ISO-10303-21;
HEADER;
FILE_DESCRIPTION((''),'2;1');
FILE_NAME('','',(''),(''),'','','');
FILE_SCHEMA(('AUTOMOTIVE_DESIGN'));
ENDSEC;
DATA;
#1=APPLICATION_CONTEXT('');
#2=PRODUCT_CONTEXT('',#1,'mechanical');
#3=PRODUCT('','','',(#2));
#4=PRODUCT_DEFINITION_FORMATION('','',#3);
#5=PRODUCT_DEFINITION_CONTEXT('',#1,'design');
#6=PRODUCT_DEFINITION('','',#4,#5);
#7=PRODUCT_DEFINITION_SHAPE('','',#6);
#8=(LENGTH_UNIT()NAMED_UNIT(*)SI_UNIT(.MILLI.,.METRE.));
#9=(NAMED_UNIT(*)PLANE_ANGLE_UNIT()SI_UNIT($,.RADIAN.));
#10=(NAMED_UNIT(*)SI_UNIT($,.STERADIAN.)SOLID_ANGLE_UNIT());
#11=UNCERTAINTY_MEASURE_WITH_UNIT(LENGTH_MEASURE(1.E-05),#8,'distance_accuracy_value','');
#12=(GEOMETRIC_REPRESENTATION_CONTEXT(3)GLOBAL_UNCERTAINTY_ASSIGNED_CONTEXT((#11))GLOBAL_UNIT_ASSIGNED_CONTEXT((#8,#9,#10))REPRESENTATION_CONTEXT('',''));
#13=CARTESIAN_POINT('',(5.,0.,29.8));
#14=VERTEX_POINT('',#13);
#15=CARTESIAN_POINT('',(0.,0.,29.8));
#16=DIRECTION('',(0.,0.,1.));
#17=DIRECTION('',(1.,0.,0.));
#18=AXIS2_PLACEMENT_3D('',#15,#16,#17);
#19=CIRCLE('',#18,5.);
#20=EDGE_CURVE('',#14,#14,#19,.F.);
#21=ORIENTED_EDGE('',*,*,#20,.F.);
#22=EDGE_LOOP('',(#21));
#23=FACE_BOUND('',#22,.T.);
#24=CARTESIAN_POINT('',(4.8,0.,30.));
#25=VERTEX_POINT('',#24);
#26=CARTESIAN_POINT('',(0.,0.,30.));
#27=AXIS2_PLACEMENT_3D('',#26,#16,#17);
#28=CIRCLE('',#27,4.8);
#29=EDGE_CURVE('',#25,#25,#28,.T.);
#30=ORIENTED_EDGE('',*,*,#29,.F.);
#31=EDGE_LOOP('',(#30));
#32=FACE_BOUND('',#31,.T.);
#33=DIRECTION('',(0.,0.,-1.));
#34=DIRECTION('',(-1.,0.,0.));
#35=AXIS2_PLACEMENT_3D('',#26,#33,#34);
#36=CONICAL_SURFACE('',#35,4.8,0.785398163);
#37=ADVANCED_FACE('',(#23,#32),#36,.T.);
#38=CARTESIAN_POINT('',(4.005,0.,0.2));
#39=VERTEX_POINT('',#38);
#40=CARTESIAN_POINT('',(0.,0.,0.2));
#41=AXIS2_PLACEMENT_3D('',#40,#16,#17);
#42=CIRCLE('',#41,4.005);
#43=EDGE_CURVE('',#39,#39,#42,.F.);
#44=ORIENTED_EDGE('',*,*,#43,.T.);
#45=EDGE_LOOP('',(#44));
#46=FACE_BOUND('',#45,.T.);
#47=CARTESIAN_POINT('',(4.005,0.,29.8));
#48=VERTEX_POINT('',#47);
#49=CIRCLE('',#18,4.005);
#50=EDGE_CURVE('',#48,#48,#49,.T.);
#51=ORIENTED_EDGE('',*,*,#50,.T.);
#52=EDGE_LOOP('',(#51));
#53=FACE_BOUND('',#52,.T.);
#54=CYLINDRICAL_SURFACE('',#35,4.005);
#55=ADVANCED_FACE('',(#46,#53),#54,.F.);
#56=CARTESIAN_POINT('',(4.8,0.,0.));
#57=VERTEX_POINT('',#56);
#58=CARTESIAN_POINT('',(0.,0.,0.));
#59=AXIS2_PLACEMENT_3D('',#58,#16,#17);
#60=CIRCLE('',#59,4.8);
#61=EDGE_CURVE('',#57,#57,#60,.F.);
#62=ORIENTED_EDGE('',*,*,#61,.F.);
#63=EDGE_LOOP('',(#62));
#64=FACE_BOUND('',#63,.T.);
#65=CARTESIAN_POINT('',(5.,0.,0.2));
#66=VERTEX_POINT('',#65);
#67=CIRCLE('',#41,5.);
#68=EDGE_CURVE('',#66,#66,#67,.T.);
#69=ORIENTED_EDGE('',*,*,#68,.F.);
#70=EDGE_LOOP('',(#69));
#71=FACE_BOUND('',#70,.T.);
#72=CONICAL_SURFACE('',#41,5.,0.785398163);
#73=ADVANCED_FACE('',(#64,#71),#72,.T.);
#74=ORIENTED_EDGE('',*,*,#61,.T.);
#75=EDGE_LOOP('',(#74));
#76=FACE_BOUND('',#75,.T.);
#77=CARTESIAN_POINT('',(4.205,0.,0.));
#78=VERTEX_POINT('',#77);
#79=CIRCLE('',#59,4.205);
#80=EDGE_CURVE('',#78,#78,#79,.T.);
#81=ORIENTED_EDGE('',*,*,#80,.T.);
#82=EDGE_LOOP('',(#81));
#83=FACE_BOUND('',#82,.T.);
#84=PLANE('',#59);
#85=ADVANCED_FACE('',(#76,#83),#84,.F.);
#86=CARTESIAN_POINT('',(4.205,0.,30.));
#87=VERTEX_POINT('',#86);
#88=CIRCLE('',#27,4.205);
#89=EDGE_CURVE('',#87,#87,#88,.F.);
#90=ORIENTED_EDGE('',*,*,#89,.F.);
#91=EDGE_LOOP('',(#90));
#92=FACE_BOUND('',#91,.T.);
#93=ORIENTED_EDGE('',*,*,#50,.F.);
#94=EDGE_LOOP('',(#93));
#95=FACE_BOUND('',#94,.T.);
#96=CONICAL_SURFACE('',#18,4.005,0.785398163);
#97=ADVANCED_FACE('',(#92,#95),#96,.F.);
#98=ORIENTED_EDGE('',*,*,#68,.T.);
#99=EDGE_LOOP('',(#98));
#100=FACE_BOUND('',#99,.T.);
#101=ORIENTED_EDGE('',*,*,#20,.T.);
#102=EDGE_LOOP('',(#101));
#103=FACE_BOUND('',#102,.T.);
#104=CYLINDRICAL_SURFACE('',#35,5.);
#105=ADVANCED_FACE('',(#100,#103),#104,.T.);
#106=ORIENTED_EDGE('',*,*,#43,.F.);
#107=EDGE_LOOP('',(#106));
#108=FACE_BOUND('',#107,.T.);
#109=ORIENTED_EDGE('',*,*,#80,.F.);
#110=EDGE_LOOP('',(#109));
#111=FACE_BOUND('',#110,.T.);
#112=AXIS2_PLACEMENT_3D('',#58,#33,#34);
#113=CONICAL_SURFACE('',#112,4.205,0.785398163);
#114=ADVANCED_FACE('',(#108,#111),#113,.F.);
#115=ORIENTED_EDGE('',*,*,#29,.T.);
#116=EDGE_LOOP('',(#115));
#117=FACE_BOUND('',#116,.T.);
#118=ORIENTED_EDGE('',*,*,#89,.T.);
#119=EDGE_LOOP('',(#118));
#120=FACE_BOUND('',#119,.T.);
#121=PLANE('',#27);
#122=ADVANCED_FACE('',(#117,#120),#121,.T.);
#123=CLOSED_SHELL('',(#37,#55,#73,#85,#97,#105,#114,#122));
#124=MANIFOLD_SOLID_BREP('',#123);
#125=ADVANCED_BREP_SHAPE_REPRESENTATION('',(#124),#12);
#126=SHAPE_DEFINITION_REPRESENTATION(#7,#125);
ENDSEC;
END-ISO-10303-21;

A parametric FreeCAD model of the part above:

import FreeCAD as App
import Part
import Sketcher
from FreeCAD import Vector


def edges_at(feature, points):
    """Names of the edges that pass closest to the given points."""
    edges = feature.Shape.Edges
    near = lambda p: min(range(len(edges)), key=lambda i: edges[i].distToShape(Part.Vertex(*p))[0])
    return sorted({f"Edge{near(p) + 1}" for p in points})

doc = App.newDocument("Part")
body = doc.addObject("PartDesign::Body", "Body")

sketch1 = doc.addObject("Sketcher::SketchObject", "Sketch")
body.addObject(sketch1)
sketch1.AttachmentSupport = (doc.XY_Plane, [""])
sketch1.MapMode = "FlatFace"
sketch1.addGeometry(Part.Circle(Vector(0, 0, 0), Vector(0, 0, 1), 5), False)
sketch1.addGeometry(Part.Circle(Vector(0, 0, 0), Vector(0, 0, 1), 4), False)
sketch1.addConstraint(Sketcher.Constraint("Coincident", 0, 3, -1, 1))
sketch1.addConstraint(Sketcher.Constraint("Coincident", 1, 3, -1, 1))
sketch1.addConstraint(Sketcher.Constraint("Diameter", 0, 10.0))
sketch1.addConstraint(Sketcher.Constraint("Diameter", 1, 8.01))
pad1 = doc.addObject("PartDesign::Pad", "Pad")
body.addObject(pad1)
pad1.Profile = sketch1
pad1.Length = 30
doc.recompute()

chamfer = doc.addObject("PartDesign::Chamfer", "Chamfer")
body.addObject(chamfer)
chamfer.Base = (pad1, edges_at(pad1, [
    (-5, 0, 0),
    (-5, 0, 30),
    (-4.005, 0, 0),
    (-4.005, 0, 30),
]))
chamfer.Size = 0.2

doc.recompute()
